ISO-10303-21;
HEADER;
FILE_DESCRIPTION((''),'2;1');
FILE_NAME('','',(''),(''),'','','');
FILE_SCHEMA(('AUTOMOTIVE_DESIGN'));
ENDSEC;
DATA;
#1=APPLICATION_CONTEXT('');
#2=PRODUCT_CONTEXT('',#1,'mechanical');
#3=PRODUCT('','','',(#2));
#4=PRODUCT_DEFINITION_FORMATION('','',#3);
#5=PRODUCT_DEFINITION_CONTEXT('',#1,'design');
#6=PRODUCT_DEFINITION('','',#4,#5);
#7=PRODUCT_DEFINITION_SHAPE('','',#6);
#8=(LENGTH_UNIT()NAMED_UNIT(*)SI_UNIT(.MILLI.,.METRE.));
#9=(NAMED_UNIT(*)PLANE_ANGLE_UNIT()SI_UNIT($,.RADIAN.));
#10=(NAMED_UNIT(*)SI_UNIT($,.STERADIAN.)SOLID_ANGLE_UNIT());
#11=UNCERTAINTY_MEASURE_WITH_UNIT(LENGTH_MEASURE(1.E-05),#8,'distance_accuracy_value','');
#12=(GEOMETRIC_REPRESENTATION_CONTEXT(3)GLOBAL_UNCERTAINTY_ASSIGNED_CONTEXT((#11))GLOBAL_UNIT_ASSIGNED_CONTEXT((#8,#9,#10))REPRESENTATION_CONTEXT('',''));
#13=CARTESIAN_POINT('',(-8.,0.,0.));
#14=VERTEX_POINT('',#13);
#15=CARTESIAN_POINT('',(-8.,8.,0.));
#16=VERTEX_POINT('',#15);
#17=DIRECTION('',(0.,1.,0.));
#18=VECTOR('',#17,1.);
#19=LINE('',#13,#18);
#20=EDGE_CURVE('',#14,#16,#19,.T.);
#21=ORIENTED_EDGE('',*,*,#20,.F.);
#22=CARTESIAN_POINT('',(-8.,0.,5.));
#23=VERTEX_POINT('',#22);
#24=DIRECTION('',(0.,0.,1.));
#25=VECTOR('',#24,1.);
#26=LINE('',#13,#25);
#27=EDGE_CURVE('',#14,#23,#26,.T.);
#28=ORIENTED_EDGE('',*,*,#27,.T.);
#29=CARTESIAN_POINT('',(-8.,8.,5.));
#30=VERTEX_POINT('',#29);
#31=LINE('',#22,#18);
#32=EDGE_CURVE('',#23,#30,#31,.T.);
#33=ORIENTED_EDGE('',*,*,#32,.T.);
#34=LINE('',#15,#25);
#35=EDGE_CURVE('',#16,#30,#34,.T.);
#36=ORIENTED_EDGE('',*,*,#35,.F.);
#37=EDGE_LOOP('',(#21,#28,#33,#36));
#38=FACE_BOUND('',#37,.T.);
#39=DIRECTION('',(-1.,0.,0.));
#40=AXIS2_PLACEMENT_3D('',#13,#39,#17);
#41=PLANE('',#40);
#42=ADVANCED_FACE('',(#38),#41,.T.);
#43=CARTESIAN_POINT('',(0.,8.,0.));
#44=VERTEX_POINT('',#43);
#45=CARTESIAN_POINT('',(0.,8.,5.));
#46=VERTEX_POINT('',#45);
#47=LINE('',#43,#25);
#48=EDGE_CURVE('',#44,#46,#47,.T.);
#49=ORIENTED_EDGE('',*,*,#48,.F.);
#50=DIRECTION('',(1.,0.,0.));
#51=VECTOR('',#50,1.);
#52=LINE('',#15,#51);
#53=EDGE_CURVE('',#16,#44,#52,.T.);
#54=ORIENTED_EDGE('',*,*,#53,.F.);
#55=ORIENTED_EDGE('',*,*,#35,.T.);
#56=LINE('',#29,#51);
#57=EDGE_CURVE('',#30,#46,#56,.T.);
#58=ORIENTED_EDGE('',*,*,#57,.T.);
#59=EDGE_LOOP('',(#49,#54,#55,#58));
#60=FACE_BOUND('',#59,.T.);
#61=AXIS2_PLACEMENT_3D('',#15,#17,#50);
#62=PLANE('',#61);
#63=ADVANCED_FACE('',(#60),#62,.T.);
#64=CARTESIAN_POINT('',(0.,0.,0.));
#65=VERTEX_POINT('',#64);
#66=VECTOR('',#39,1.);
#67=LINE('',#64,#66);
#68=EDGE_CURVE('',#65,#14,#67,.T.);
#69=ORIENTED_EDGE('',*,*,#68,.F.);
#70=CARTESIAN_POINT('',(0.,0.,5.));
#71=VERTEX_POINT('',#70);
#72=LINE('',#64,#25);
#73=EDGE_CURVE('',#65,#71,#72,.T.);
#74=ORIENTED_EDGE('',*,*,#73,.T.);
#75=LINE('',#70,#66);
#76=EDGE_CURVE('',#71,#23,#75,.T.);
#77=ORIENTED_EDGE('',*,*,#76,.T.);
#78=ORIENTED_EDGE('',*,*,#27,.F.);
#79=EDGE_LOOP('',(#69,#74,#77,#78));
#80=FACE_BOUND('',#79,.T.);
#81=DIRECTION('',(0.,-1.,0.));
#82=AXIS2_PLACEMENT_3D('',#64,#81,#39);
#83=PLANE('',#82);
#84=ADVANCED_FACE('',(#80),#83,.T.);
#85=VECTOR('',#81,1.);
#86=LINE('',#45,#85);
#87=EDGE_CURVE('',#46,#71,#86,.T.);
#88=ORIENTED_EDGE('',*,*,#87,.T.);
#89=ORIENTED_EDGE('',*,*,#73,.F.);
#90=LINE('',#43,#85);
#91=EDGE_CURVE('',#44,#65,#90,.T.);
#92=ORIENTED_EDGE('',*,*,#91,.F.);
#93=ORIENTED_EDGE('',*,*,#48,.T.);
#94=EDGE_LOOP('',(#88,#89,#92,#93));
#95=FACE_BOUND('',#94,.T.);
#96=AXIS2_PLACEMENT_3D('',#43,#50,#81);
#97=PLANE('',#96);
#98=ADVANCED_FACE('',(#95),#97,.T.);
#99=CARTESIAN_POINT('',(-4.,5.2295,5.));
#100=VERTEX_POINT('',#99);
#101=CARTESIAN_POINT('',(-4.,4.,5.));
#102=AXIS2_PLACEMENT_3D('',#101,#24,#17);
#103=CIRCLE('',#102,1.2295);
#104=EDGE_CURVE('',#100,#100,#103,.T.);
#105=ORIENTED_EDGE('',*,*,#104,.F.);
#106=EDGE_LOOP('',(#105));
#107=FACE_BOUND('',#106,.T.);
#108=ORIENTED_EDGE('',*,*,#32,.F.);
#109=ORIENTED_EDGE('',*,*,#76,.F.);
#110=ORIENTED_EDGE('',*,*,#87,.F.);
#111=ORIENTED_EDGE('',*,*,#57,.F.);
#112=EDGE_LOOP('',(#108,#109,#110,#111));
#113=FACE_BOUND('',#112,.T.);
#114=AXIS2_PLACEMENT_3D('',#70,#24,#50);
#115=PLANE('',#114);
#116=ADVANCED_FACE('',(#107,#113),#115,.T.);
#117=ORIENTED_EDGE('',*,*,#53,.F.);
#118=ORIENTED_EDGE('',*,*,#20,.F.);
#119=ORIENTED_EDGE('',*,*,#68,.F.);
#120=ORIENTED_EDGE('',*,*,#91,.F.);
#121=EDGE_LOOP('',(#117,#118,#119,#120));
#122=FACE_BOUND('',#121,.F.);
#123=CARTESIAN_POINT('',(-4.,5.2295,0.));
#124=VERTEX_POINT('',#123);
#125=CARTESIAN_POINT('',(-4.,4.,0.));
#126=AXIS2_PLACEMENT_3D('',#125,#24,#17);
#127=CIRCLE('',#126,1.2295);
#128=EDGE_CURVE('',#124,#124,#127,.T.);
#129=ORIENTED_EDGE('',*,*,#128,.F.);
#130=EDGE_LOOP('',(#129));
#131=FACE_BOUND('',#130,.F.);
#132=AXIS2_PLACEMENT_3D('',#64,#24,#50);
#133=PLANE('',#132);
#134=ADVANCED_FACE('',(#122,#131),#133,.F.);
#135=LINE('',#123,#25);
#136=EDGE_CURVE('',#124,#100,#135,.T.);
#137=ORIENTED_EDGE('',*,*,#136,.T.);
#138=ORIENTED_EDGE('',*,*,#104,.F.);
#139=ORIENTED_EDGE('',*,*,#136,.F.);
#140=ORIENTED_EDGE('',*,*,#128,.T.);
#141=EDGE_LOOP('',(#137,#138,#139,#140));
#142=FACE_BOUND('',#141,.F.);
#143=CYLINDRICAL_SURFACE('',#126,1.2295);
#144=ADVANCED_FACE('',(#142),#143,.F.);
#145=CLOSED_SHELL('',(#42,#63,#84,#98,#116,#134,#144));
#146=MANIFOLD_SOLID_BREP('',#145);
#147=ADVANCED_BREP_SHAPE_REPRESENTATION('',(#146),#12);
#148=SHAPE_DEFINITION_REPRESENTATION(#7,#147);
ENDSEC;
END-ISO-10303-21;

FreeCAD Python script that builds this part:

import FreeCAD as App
import Part
import Sketcher

V = App.Vector
Q = App.Units.Quantity


def add_polygon(sketch, points):
    """Adds a closed chain of lines whose ends are joined by coincident constraints."""
    first, n = sketch.GeometryCount, len(points)
    for a, b in zip(points, points[1:] + points[:1]):
        sketch.addGeometry(Part.LineSegment(App.Vector(*a, 0), App.Vector(*b, 0)), False)
    for i in range(n):
        sketch.addConstraint(Sketcher.Constraint("Coincident", first + i, 2, first + (i + 1) % n, 1))

doc = App.newDocument("Part")
body = doc.addObject("PartDesign::Body", "Body")

# Sketch on XY plane
sketch1 = body.newObject("Sketcher::SketchObject", "Sketch")
sketch1.AttachmentSupport = (doc.getObject("XY_Plane"), [""])
sketch1.MapMode = "FlatFace"
add_polygon(sketch1, [(-8, 0), (0, 0), (0, 8), (-8, 8)])  # lines 0-3
sketch1.addConstraint(Sketcher.Constraint("Horizontal", 0))
sketch1.addConstraint(Sketcher.Constraint("Vertical", 1))
sketch1.addConstraint(Sketcher.Constraint("Horizontal", 2))
sketch1.addConstraint(Sketcher.Constraint("Vertical", 3))
sketch1.addConstraint(Sketcher.Constraint("Coincident", 0, 2, -1, 1))
sketch1.addConstraint(Sketcher.Constraint("Equal", 2, 1))
sketch1.addConstraint(Sketcher.Constraint("DistanceX", 0, 1, 0, 2, Q("8 mm")))
pad1 = body.newObject("PartDesign::Pad", "Pad")
pad1.Profile = sketch1
pad1.Length = 5

# Sketch on XY plane
sketch2 = body.newObject("Sketcher::SketchObject", "Sketch001")
sketch2.AttachmentSupport = (doc.getObject("XY_Plane"), [""])
sketch2.MapMode = "FlatFace"
sketch2.addGeometry(Part.Circle(V(-4, 4, 0), V(0, 0, 1), 1.2), False)
sketch2.addConstraint(Sketcher.Constraint("Diameter", 0, Q("2.459 mm")))
sketch2.addConstraint(Sketcher.Constraint("DistanceX", 0, 3, -1, 1, Q("4 mm")))
sketch2.addConstraint(Sketcher.Constraint("DistanceY", -1, 1, 0, 3, Q("4 mm")))
doc.recompute()
hole = body.newObject("PartDesign::Hole", "Hole")
hole.Profile = sketch2
hole.ThreadType = "None"
hole.Diameter = 2.459
hole.DepthType = "ThroughAll"
hole.Reversed = True

doc.recompute()
